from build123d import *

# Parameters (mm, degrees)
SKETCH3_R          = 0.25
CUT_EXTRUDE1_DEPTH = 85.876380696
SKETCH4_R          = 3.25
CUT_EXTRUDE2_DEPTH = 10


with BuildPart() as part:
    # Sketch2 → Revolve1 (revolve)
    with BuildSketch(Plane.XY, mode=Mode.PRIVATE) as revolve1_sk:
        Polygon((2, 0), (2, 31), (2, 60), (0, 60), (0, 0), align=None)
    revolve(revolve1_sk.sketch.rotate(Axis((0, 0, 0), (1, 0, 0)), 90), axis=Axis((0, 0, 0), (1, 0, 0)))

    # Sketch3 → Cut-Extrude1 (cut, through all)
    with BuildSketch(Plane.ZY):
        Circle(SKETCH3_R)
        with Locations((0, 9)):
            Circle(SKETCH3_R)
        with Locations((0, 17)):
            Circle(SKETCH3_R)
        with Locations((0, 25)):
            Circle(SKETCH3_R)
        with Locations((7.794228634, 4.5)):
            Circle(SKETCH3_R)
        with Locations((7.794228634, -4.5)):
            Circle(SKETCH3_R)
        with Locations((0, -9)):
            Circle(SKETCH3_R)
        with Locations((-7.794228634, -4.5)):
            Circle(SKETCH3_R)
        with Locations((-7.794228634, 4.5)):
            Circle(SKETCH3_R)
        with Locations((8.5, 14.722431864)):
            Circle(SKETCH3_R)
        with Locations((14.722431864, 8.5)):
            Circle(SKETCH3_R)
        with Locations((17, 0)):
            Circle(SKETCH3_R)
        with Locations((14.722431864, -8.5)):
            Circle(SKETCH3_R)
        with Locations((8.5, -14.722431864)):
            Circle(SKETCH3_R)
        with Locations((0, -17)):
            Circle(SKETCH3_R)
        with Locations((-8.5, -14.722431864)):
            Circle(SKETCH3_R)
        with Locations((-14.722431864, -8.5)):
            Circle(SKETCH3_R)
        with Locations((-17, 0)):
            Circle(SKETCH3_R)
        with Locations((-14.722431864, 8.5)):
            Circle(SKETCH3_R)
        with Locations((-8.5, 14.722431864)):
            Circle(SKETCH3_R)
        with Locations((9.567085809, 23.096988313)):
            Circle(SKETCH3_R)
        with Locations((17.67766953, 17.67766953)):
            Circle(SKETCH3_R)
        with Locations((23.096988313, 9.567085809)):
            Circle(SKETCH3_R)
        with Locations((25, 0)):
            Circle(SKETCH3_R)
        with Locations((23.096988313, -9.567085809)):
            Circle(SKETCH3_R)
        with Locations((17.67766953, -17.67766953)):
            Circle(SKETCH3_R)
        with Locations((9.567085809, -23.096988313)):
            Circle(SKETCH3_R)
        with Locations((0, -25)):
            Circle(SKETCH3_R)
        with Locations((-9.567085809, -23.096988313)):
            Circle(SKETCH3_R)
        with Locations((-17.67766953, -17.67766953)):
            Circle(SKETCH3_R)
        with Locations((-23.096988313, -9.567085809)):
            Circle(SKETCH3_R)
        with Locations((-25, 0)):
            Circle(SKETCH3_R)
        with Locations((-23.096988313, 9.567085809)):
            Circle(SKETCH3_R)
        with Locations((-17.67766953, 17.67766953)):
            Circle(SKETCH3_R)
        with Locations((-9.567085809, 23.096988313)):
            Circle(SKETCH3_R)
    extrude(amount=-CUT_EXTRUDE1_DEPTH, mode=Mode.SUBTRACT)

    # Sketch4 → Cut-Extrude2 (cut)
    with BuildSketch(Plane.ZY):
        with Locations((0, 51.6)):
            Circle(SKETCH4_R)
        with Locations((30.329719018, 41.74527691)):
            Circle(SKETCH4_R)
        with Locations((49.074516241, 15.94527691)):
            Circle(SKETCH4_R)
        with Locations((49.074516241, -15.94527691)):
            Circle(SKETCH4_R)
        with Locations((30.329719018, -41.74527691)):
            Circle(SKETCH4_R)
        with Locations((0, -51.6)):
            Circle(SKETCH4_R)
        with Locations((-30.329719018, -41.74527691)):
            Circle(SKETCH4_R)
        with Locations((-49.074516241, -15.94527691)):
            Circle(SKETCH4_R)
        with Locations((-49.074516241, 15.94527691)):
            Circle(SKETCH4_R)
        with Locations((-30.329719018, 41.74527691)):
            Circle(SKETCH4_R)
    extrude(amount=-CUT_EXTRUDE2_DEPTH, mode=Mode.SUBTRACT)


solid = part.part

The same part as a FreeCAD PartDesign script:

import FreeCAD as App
import Part
import Sketcher
from FreeCAD import Vector

doc = App.newDocument("Part")
body = doc.addObject("PartDesign::Body", "Body")

# Sketch on XY plane
sketch1 = doc.addObject("Sketcher::SketchObject", "Sketch")
body.addObject(sketch1)
sketch1.AttachmentSupport = (doc.XY_Plane, [""])
sketch1.MapMode = "FlatFace"
sketch1.addGeometry(Part.LineSegment(Vector(2, 0, 0), Vector(2, 60, 0)), False)
sketch1.addGeometry(Part.LineSegment(Vector(2, 60, 0), Vector(0, 60, 0)), False)
sketch1.addGeometry(Part.LineSegment(Vector(0, 60, 0), Vector(0, 0, 0)), False)
sketch1.addGeometry(Part.LineSegment(Vector(0, 0, 0), Vector(2, 0, 0)), False)
sketch1.addConstraint(Sketcher.Constraint("Coincident", 0, 2, 1, 1))
sketch1.addConstraint(Sketcher.Constraint("Coincident", 1, 2, 2, 1))
sketch1.addConstraint(Sketcher.Constraint("Coincident", 2, 2, 3, 1))
sketch1.addConstraint(Sketcher.Constraint("Coincident", 3, 2, 0, 1))
sketch1.addConstraint(Sketcher.Constraint("Vertical", 0))
sketch1.addConstraint(Sketcher.Constraint("Horizontal", 1))
sketch1.addConstraint(Sketcher.Constraint("Vertical", 2))
sketch1.addConstraint(Sketcher.Constraint("Horizontal", 3))
sketch1.addConstraint(Sketcher.Constraint("Coincident", 2, 2, -1, 1))
sketch1.addConstraint(Sketcher.Constraint("DistanceX", 1, 2, 1, 1, 2.0))
sketch1.addConstraint(Sketcher.Constraint("DistanceY", 0, 1, 0, 2, 60.0))
revolution = doc.addObject("PartDesign::Revolution", "Revolution")
body.addObject(revolution)
revolution.Profile = sketch1
revolution.ReferenceAxis = (sketch1, ["H_Axis"])
revolution.Angle = 360

# Sketch on YZ plane
sketch2 = doc.addObject("Sketcher::SketchObject", "Sketch001")
body.addObject(sketch2)
sketch2.AttachmentSupport = (doc.YZ_Plane, [""])
sketch2.MapMode = "FlatFace"
sketch2.addGeometry(Part.Circle(Vector(0, 0, 0), Vector(0, 0, 1), 0.25), False)
sketch2.addGeometry(Part.Circle(Vector(9, 0, 0), Vector(0, 0, 1), 0.25), False)
sketch2.addGeometry(Part.Circle(Vector(17, 0, 0), Vector(0, 0, 1), 0.25), False)
sketch2.addGeometry(Part.Circle(Vector(25, 0, 0), Vector(0, 0, 1), 0.25), False)
sketch2.addGeometry(Part.Circle(Vector(4.5, 7.79, 0), Vector(0, 0, 1), 0.25), False)
sketch2.addGeometry(Part.Circle(Vector(-4.5, 7.79, 0), Vector(0, 0, 1), 0.25), False)
sketch2.addGeometry(Part.Circle(Vector(-9, 0, 0), Vector(0, 0, 1), 0.25), False)
sketch2.addGeometry(Part.Circle(Vector(-4.5, -7.79, 0), Vector(0, 0, 1), 0.25), False)
sketch2.addGeometry(Part.Circle(Vector(4.5, -7.79, 0), Vector(0, 0, 1), 0.25), False)
sketch2.addGeometry(Part.Circle(Vector(14.72, 8.5, 0), Vector(0, 0, 1), 0.25), False)
sketch2.addGeometry(Part.Circle(Vector(8.5, 14.72, 0), Vector(0, 0, 1), 0.25), False)
sketch2.addGeometry(Part.Circle(Vector(0, 17, 0), Vector(0, 0, 1), 0.25), False)
sketch2.addGeometry(Part.Circle(Vector(-8.5, 14.72, 0), Vector(0, 0, 1), 0.25), False)
sketch2.addGeometry(Part.Circle(Vector(-14.72, 8.5, 0), Vector(0, 0, 1), 0.25), False)
sketch2.addGeometry(Part.Circle(Vector(-17, 0, 0), Vector(0, 0, 1), 0.25), False)
sketch2.addGeometry(Part.Circle(Vector(-14.72, -8.5, 0), Vector(0, 0, 1), 0.25), False)
sketch2.addGeometry(Part.Circle(Vector(-8.5, -14.72, 0), Vector(0, 0, 1), 0.25), False)
sketch2.addGeometry(Part.Circle(Vector(0, -17, 0), Vector(0, 0, 1), 0.25), False)
sketch2.addGeometry(Part.Circle(Vector(8.5, -14.72, 0), Vector(0, 0, 1), 0.25), False)
sketch2.addGeometry(Part.Circle(Vector(14.72, -8.5, 0), Vector(0, 0, 1), 0.25), False)
sketch2.addGeometry(Part.Circle(Vector(23.1, 9.57, 0), Vector(0, 0, 1), 0.25), False)
sketch2.addGeometry(Part.Circle(Vector(17.68, 17.68, 0), Vector(0, 0, 1), 0.25), False)
sketch2.addGeometry(Part.Circle(Vector(9.57, 23.1, 0), Vector(0, 0, 1), 0.25), False)
sketch2.addGeometry(Part.Circle(Vector(0, 25, 0), Vector(0, 0, 1), 0.25), False)
sketch2.addGeometry(Part.Circle(Vector(-9.57, 23.1, 0), Vector(0, 0, 1), 0.25), False)
sketch2.addGeometry(Part.Circle(Vector(-17.68, 17.68, 0), Vector(0, 0, 1), 0.25), False)
sketch2.addGeometry(Part.Circle(Vector(-23.1, 9.57, 0), Vector(0, 0, 1), 0.25), False)
sketch2.addGeometry(Part.Circle(Vector(-25, 0, 0), Vector(0, 0, 1), 0.25), False)
sketch2.addGeometry(Part.Circle(Vector(-23.1, -9.57, 0), Vector(0, 0, 1), 0.25), False)
sketch2.addGeometry(Part.Circle(Vector(-17.68, -17.68, 0), Vector(0, 0, 1), 0.25), False)
sketch2.addGeometry(Part.Circle(Vector(-9.57, -23.1, 0), Vector(0, 0, 1), 0.25), False)
sketch2.addGeometry(Part.Circle(Vector(0, -25, 0), Vector(0, 0, 1), 0.25), False)
sketch2.addGeometry(Part.Circle(Vector(9.57, -23.1, 0), Vector(0, 0, 1), 0.25), False)
sketch2.addGeometry(Part.Circle(Vector(17.68, -17.68, 0), Vector(0, 0, 1), 0.25), False)
sketch2.addGeometry(Part.Circle(Vector(23.1, -9.57, 0), Vector(0, 0, 1), 0.25), False)
sketch2.addConstraint(Sketcher.Constraint("Coincident", 0, 3, -1, 1))
sketch2.addConstraint(Sketcher.Constraint("Equal", 0, 1))
sketch2.addConstraint(Sketcher.Constraint("Equal", 1, 2))
sketch2.addConstraint(Sketcher.Constraint("Equal", 2, 3))
sketch2.addConstraint(Sketcher.Constraint("Equal", 3, 4))
sketch2.addConstraint(Sketcher.Constraint("Equal", 4, 5))
sketch2.addConstraint(Sketcher.Constraint("Equal", 5, 6))
sketch2.addConstraint(Sketcher.Constraint("Equal", 6, 7))
sketch2.addConstraint(Sketcher.Constraint("Equal", 7, 8))
sketch2.addConstraint(Sketcher.Constraint("Equal", 8, 9))
sketch2.addConstraint(Sketcher.Constraint("Equal", 9, 10))
sketch2.addConstraint(Sketcher.Constraint("Equal", 10, 11))
sketch2.addConstraint(Sketcher.Constraint("Equal", 11, 12))
sketch2.addConstraint(Sketcher.Constraint("Equal", 12, 13))
sketch2.addConstraint(Sketcher.Constraint("Equal", 13, 14))
sketch2.addConstraint(Sketcher.Constraint("Equal", 14, 15))
sketch2.addConstraint(Sketcher.Constraint("Equal", 15, 16))
sketch2.addConstraint(Sketcher.Constraint("Equal", 16, 17))
sketch2.addConstraint(Sketcher.Constraint("Equal", 17, 18))
sketch2.addConstraint(Sketcher.Constraint("Equal", 18, 19))
sketch2.addConstraint(Sketcher.Constraint("Equal", 19, 20))
sketch2.addConstraint(Sketcher.Constraint("Equal", 20, 21))
sketch2.addConstraint(Sketcher.Constraint("Equal", 21, 22))
sketch2.addConstraint(Sketcher.Constraint("Equal", 22, 23))
sketch2.addConstraint(Sketcher.Constraint("Equal", 23, 24))
sketch2.addConstraint(Sketcher.Constraint("Equal", 24, 25))
sketch2.addConstraint(Sketcher.Constraint("Equal", 25, 26))
sketch2.addConstraint(Sketcher.Constraint("Equal", 26, 27))
sketch2.addConstraint(Sketcher.Constraint("Equal", 27, 28))
sketch2.addConstraint(Sketcher.Constraint("Equal", 28, 29))
sketch2.addConstraint(Sketcher.Constraint("Equal", 29, 30))
sketch2.addConstraint(Sketcher.Constraint("Equal", 30, 31))
sketch2.addConstraint(Sketcher.Constraint("Equal", 31, 32))
sketch2.addConstraint(Sketcher.Constraint("Equal", 32, 33))
sketch2.addConstraint(Sketcher.Constraint("Equal", 33, 34))
sketch2.addConstraint(Sketcher.Constraint("Symmetric", 1, 3, 6, 3, -1, 1))
sketch2.addConstraint(Sketcher.Constraint("Symmetric", 4, 3, 7, 3, -1, 1))
sketch2.addConstraint(Sketcher.Constraint("Symmetric", 5, 3, 8, 3, -1, 1))
sketch2.addConstraint(Sketcher.Constraint("Symmetric", 2, 3, 14, 3, -1, 1))
sketch2.addConstraint(Sketcher.Constraint("Symmetric", 9, 3, 15, 3, -1, 1))
sketch2.addConstraint(Sketcher.Constraint("Symmetric", 10, 3, 16, 3, -1, 1))
sketch2.addConstraint(Sketcher.Constraint("Symmetric", 11, 3, 17, 3, -1, 1))
sketch2.addConstraint(Sketcher.Constraint("Symmetric", 12, 3, 18, 3, -1, 1))
sketch2.addConstraint(Sketcher.Constraint("Symmetric", 13, 3, 19, 3, -1, 1))
sketch2.addConstraint(Sketcher.Constraint("Symmetric", 3, 3, 27, 3, -1, 1))
sketch2.addConstraint(Sketcher.Constraint("Symmetric", 20, 3, 28, 3, -1, 1))
sketch2.addConstraint(Sketcher.Constraint("Symmetric", 21, 3, 29, 3, -1, 1))
sketch2.addConstraint(Sketcher.Constraint("Symmetric", 22, 3, 30, 3, -1, 1))
sketch2.addConstraint(Sketcher.Constraint("Symmetric", 23, 3, 31, 3, -1, 1))
sketch2.addConstraint(Sketcher.Constraint("Symmetric", 24, 3, 32, 3, -1, 1))
sketch2.addConstraint(Sketcher.Constraint("Symmetric", 25, 3, 33, 3, -1, 1))
sketch2.addConstraint(Sketcher.Constraint("Symmetric", 26, 3, 34, 3, -1, 1))
sketch2.addConstraint(Sketcher.Constraint("Symmetric", 4, 3, 5, 3, -2))
sketch2.addConstraint(Sketcher.Constraint("Symmetric", 10, 3, 12, 3, -2))
sketch2.addConstraint(Sketcher.Constraint("Symmetric", 9, 3, 13, 3, -2))
sketch2.addConstraint(Sketcher.Constraint("Symmetric", 22, 3, 24, 3, -2))
sketch2.addConstraint(Sketcher.Constraint("Symmetric", 21, 3, 25, 3, -2))
sketch2.addConstraint(Sketcher.Constraint("Symmetric", 20, 3, 26, 3, -2))
sketch2.addConstraint(Sketcher.Constraint("PointOnObject", 1, 3, -1))
sketch2.addConstraint(Sketcher.Constraint("PointOnObject", 2, 3, -1))
sketch2.addConstraint(Sketcher.Constraint("PointOnObject", 3, 3, -1))
sketch2.addConstraint(Sketcher.Constraint("PointOnObject", 11, 3, -2))
sketch2.addConstraint(Sketcher.Constraint("PointOnObject", 23, 3, -2))
sketch2.addConstraint(Sketcher.Constraint("Diameter", 0, 0.5))
sketch2.addConstraint(Sketcher.Constraint("DistanceX", -1, 1, 1, 3, 9.0))
sketch2.addConstraint(Sketcher.Constraint("DistanceX", -1, 1, 2, 3, 17.0))
sketch2.addConstraint(Sketcher.Constraint("DistanceX", -1, 1, 3, 3, 25.0))
sketch2.addConstraint(Sketcher.Constraint("DistanceY", -1, 1, 11, 3, 17.0))
sketch2.addConstraint(Sketcher.Constraint("DistanceY", -1, 1, 23, 3, 25.0))
sketch2.addConstraint(Sketcher.Constraint("DistanceX", 5, 3, 4, 3, 9.0))
sketch2.addConstraint(Sketcher.Constraint("DistanceX", 4, 3, 10, 3, 4.0))
sketch2.addConstraint(Sketcher.Constraint("DistanceY", 15, 3, 13, 3, 17.0))
sketch2.addConstraint(Sketcher.Constraint("DistanceY", -1, 1, 4, 3, 7.794229))
sketch2.addConstraint(Sketcher.Constraint("DistanceX", -1, 1, 9, 3, 14.722432))
sketch2.addConstraint(Sketcher.Constraint("DistanceY", -1, 1, 10, 3, 14.722432))
sketch2.addConstraint(Sketcher.Constraint("DistanceX", -1, 1, 20, 3, 23.096988))
sketch2.addConstraint(Sketcher.Constraint("DistanceX", -1, 1, 21, 3, 17.67767))
sketch2.addConstraint(Sketcher.Constraint("DistanceY", -1, 1, 21, 3, 17.67767))
sketch2.addConstraint(Sketcher.Constraint("DistanceY", -1, 1, 22, 3, 23.096988))
sketch2.addConstraint(Sketcher.Constraint("DistanceY", -1, 1, 20, 3, 9.567086))
sketch2.addConstraint(Sketcher.Constraint("DistanceX", -1, 1, 22, 3, 9.567086))
pocket1 = doc.addObject("PartDesign::Pocket", "Pocket")
body.addObject(pocket1)
pocket1.Profile = sketch2
pocket1.Type = "ThroughAll"
pocket1.Reversed = True

# Sketch on YZ plane
sketch3 = doc.addObject("Sketcher::SketchObject", "Sketch002")
body.addObject(sketch3)
sketch3.AttachmentSupport = (doc.YZ_Plane, [""])
sketch3.MapMode = "FlatFace"
sketch3.addGeometry(Part.Circle(Vector(51.6, 0, 0), Vector(0, 0, 1), 3.2), False)
sketch3.addGeometry(Part.Circle(Vector(41.7, 30.3, 0), Vector(0, 0, 1), 3.2), False)
sketch3.addGeometry(Part.Circle(Vector(15.9, 49.1, 0), Vector(0, 0, 1), 3.2), False)
sketch3.addGeometry(Part.Circle(Vector(-15.9, 49.1, 0), Vector(0, 0, 1), 3.2), False)
sketch3.addGeometry(Part.Circle(Vector(-41.7, 30.3, 0), Vector(0, 0, 1), 3.2), False)
sketch3.addGeometry(Part.Circle(Vector(-51.6, 0, 0), Vector(0, 0, 1), 3.2), False)
sketch3.addGeometry(Part.Circle(Vector(-41.7, -30.3, 0), Vector(0, 0, 1), 3.2), False)
sketch3.addGeometry(Part.Circle(Vector(-15.9, -49.1, 0), Vector(0, 0, 1), 3.2), False)
sketch3.addGeometry(Part.Circle(Vector(15.9, -49.1, 0), Vector(0, 0, 1), 3.2), False)
sketch3.addGeometry(Part.Circle(Vector(41.7, -30.3, 0), Vector(0, 0, 1), 3.2), False)
sketch3.addConstraint(Sketcher.Constraint("Equal", 0, 1))
sketch3.addConstraint(Sketcher.Constraint("Equal", 1, 2))
sketch3.addConstraint(Sketcher.Constraint("Equal", 2, 3))
sketch3.addConstraint(Sketcher.Constraint("Equal", 3, 4))
sketch3.addConstraint(Sketcher.Constraint("Equal", 4, 5))
sketch3.addConstraint(Sketcher.Constraint("Equal", 5, 6))
sketch3.addConstraint(Sketcher.Constraint("Equal", 6, 7))
sketch3.addConstraint(Sketcher.Constraint("Equal", 7, 8))
sketch3.addConstraint(Sketcher.Constraint("Equal", 8, 9))
sketch3.addConstraint(Sketcher.Constraint("Symmetric", 0, 3, 5, 3, -1, 1))
sketch3.addConstraint(Sketcher.Constraint("Symmetric", 1, 3, 6, 3, -1, 1))
sketch3.addConstraint(Sketcher.Constraint("Symmetric", 2, 3, 7, 3, -1, 1))
sketch3.addConstraint(Sketcher.Constraint("Symmetric", 3, 3, 8, 3, -1, 1))
sketch3.addConstraint(Sketcher.Constraint("Symmetric", 4, 3, 9, 3, -1, 1))
sketch3.addConstraint(Sketcher.Constraint("Symmetric", 2, 3, 3, 3, -2))
sketch3.addConstraint(Sketcher.Constraint("Symmetric", 1, 3, 4, 3, -2))
sketch3.addConstraint(Sketcher.Constraint("PointOnObject", 0, 3, -1))
sketch3.addConstraint(Sketcher.Constraint("Diameter", 0, 6.5))
sketch3.addConstraint(Sketcher.Constraint("DistanceX", -1, 1, 0, 3, 51.6))
sketch3.addConstraint(Sketcher.Constraint("DistanceX", 2, 3, 1, 3, 25.8))
sketch3.addConstraint(Sketcher.Constraint("DistanceY", -1, 1, 1, 3, 30.329719))
sketch3.addConstraint(Sketcher.Constraint("DistanceX", -1, 1, 1, 3, 41.745277))
sketch3.addConstraint(Sketcher.Constraint("DistanceY", -1, 1, 2, 3, 49.074516))
pocket2 = doc.addObject("PartDesign::Pocket", "Pocket001")
body.addObject(pocket2)
pocket2.Profile = sketch3
pocket2.Length = 10
pocket2.Reversed = True

doc.recompute()
